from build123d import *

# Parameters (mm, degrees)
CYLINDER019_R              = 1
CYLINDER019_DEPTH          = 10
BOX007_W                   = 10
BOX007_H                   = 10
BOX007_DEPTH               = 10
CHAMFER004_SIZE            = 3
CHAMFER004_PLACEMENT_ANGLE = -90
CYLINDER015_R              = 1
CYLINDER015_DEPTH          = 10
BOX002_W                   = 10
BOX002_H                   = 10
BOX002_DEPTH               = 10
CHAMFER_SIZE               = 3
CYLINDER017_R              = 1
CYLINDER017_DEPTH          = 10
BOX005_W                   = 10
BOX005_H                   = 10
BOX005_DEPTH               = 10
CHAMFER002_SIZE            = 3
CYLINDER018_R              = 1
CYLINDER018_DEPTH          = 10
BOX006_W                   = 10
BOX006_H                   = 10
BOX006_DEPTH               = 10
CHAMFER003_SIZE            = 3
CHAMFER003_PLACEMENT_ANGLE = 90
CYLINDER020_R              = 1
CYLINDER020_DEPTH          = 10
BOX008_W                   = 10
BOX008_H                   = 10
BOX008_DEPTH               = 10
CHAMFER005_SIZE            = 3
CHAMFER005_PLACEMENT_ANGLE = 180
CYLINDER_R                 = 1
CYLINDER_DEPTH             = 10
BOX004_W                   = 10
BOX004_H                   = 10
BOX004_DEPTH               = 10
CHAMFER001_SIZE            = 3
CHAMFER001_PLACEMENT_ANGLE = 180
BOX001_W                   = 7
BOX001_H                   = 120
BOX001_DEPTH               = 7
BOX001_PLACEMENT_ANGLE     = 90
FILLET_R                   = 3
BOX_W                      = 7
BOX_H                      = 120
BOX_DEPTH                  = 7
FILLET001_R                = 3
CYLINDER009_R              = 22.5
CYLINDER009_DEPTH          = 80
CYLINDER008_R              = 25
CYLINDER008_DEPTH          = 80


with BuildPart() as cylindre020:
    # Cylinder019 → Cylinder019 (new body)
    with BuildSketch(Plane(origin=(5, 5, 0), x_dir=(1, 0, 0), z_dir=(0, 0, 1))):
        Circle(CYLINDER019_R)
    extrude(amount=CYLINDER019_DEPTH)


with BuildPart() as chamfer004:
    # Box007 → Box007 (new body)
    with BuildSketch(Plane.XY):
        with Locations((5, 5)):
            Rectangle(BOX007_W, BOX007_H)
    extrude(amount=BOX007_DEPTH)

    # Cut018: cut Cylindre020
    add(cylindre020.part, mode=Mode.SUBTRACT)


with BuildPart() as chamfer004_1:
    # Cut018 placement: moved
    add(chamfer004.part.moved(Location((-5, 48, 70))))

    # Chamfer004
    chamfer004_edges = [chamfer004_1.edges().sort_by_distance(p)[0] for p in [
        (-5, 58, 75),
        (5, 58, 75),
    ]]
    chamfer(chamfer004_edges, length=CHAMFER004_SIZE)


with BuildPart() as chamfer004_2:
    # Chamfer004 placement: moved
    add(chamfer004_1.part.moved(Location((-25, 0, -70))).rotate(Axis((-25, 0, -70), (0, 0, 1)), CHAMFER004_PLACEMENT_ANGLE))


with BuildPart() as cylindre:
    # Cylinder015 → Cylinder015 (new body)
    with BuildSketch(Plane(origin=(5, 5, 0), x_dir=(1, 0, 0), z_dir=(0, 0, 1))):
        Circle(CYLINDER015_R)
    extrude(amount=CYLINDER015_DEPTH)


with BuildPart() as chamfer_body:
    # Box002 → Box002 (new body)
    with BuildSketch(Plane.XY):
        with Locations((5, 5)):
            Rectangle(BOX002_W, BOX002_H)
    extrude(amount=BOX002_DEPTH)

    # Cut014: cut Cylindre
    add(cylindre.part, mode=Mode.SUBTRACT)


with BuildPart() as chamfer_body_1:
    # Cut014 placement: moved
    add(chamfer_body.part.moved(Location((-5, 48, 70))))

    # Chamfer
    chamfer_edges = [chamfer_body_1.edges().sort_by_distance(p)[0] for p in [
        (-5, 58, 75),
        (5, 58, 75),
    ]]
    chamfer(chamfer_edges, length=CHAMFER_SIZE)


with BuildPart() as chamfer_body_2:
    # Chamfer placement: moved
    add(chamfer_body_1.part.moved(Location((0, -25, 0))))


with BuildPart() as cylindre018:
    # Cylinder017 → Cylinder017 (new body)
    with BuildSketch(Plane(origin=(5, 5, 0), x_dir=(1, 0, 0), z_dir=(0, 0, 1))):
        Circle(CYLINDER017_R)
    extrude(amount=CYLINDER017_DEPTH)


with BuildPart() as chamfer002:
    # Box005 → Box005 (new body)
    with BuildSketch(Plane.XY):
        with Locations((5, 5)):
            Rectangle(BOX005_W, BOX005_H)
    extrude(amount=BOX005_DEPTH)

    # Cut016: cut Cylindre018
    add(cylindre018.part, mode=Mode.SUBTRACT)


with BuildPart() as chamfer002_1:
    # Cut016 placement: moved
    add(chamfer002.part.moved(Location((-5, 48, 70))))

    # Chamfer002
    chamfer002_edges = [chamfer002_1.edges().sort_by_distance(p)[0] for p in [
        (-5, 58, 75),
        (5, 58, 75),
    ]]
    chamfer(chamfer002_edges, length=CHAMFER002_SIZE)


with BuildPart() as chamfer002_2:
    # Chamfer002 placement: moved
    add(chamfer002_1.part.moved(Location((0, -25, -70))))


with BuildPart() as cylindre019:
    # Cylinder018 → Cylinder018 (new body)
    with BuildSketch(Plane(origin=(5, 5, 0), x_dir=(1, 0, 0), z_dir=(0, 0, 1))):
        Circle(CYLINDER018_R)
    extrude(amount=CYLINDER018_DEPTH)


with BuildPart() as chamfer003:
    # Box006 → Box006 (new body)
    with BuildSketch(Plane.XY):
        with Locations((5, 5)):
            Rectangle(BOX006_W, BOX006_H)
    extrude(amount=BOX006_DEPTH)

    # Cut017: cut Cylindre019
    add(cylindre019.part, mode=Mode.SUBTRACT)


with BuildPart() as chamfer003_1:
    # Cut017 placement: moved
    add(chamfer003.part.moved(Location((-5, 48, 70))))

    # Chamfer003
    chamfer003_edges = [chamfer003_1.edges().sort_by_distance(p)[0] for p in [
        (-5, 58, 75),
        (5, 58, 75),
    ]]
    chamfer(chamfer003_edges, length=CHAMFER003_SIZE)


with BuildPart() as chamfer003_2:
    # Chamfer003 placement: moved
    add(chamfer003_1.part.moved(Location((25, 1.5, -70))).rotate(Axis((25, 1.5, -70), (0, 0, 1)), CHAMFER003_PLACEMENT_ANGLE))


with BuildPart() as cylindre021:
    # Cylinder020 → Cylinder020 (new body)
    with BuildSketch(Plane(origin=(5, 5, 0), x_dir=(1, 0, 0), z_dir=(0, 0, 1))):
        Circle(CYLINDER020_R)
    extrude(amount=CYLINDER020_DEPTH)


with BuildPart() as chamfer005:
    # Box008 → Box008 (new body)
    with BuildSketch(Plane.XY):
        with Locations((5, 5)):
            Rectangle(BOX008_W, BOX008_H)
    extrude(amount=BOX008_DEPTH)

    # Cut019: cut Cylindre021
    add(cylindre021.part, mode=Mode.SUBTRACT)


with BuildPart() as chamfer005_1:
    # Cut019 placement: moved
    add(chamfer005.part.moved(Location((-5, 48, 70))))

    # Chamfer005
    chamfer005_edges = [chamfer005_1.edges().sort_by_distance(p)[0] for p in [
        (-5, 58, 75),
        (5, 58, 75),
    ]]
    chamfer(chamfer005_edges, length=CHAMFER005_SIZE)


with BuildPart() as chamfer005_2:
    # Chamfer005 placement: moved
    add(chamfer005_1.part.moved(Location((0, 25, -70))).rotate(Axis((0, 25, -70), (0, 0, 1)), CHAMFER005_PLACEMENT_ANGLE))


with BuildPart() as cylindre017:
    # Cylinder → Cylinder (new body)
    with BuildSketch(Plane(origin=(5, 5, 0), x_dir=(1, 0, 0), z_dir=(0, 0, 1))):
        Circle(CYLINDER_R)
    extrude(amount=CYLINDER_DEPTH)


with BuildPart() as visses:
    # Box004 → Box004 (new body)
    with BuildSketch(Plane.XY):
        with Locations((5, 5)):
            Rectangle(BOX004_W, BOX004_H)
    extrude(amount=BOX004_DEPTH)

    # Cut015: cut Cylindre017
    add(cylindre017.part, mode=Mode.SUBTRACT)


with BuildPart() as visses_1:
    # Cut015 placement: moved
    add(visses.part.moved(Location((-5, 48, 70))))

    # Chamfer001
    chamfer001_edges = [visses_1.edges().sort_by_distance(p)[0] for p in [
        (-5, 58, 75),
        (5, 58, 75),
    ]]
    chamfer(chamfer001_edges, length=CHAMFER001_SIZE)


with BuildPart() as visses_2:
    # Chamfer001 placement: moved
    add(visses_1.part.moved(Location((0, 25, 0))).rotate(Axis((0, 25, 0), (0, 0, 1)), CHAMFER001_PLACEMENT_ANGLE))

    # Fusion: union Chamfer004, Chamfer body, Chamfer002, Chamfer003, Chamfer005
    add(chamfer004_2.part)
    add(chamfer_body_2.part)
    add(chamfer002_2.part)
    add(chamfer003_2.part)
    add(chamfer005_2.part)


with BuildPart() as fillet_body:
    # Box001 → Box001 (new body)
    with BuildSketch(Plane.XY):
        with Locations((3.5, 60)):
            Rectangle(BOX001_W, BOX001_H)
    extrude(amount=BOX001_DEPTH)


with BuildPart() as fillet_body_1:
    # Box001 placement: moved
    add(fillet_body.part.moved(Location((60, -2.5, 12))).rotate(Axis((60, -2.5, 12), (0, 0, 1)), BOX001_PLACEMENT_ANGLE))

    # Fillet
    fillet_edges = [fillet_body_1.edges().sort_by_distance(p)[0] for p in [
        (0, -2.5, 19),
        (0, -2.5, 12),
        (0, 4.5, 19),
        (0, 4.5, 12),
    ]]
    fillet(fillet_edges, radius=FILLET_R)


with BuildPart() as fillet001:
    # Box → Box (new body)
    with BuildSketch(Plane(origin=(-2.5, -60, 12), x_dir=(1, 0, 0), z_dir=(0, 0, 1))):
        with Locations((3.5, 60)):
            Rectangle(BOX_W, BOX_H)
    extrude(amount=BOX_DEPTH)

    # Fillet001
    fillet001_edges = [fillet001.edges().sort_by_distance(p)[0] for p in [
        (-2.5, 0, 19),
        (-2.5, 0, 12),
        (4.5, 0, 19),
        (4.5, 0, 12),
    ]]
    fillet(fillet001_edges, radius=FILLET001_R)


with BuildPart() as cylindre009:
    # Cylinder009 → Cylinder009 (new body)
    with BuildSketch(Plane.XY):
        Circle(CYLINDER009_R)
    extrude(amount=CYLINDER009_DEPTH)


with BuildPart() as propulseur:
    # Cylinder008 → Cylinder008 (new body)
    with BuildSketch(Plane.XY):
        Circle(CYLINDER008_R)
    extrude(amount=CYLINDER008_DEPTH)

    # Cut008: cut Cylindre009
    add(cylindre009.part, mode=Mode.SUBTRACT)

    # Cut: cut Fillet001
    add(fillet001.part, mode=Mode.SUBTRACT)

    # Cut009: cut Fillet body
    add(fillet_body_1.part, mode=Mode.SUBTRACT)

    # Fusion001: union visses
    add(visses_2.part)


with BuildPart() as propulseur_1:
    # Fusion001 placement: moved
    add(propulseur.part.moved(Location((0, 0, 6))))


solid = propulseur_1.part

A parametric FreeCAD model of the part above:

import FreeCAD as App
import Part
import Sketcher
from FreeCAD import Vector
Q = App.Units.Quantity


def edges_at(feature, points):
    """Names of the edges that pass closest to the given points."""
    edges = feature.Shape.Edges
    near = lambda p: min(range(len(edges)), key=lambda i: edges[i].distToShape(Part.Vertex(*p))[0])
    return sorted({f"Edge{near(p) + 1}" for p in points})

doc = App.newDocument("Part")
body = doc.addObject("PartDesign::Body", "Body")

# Sketch on XY plane
sketch1 = doc.addObject("Sketcher::SketchObject", "Sketch")
body.addObject(sketch1)
sketch1.AttachmentSupport = (doc.XY_Plane, [""])
sketch1.MapMode = "FlatFace"
sketch1.addGeometry(Part.Circle(Vector(5, 5, 0), Vector(0, 0, 1), 1), False)
sketch1.addConstraint([
    Sketcher.Constraint("Diameter", 0, Q("2 mm")),
    Sketcher.Constraint("DistanceX", -1, 1, 0, 3, Q("5 mm")),
    Sketcher.Constraint("DistanceY", -1, 1, 0, 3, Q("5 mm")),
])
pad1 = doc.addObject("PartDesign::Pad", "Pad")
body.addObject(pad1)
pad1.Profile = sketch1
pad1.Length = 10
body2 = doc.addObject("PartDesign::Body", "Body001")

# Sketch on XY plane
sketch2 = doc.addObject("Sketcher::SketchObject", "Sketch001")
body2.addObject(sketch2)
sketch2.AttachmentSupport = (doc.getObject("XY_Plane001"), [""])
sketch2.MapMode = "FlatFace"
sketch2.addGeometry([
    Part.LineSegment(Vector(0, 10, 0), Vector(0, 0, 0)),
    Part.LineSegment(Vector(0, 0, 0), Vector(10, 0, 0)),
    Part.LineSegment(Vector(10, 0, 0), Vector(10, 10, 0)),
    Part.LineSegment(Vector(10, 10, 0), Vector(0, 10, 0)),
], False)
sketch2.addConstraint([
    Sketcher.Constraint("Coincident", 0, 2, 1, 1),
    Sketcher.Constraint("Coincident", 1, 2, 2, 1),
    Sketcher.Constraint("Coincident", 2, 2, 3, 1),
    Sketcher.Constraint("Coincident", 3, 2, 0, 1),
    Sketcher.Constraint("Vertical", 0),
    Sketcher.Constraint("Horizontal", 1),
    Sketcher.Constraint("Vertical", 2),
    Sketcher.Constraint("Horizontal", 3),
    Sketcher.Constraint("Coincident", 0, 2, -1, 1),
    Sketcher.Constraint("Equal", 3, 0),
    Sketcher.Constraint("DistanceX", 1, 1, 1, 2, Q("10 mm")),
])
pad2 = doc.addObject("PartDesign::Pad", "Pad001")
body2.addObject(pad2)
pad2.Profile = sketch2
pad2.Length = 10
doc.recompute()

boolean = doc.addObject("PartDesign::Boolean", "Boolean")
body2.addObject(boolean)
boolean.Type = "Cut"
boolean.addObjects([body])
body3 = doc.addObject("PartDesign::Body", "Body002")
doc.recompute()

body2.Placement = App.Placement(Vector(-5, 48, 70), App.Rotation(Vector(0, 0, 1), 0))
boolean2 = doc.addObject("PartDesign::Boolean", "Boolean001")
body3.addObject(boolean2)
boolean2.Type = "Fuse"
boolean2.addObjects([body2])
doc.recompute()

chamfer = doc.addObject("PartDesign::Chamfer", "Chamfer")
body3.addObject(chamfer)
chamfer.Base = (boolean2, edges_at(boolean2, [(-5, 58, 75), (5, 58, 75)]))
chamfer.Size = 3
body4 = doc.addObject("PartDesign::Body", "Body003")
doc.recompute()

body3.Placement = App.Placement(Vector(-25, 0, -70), App.Rotation(Vector(0, 0, 1), 270))
boolean3 = doc.addObject("PartDesign::Boolean", "Boolean002")
body4.addObject(boolean3)
boolean3.Type = "Fuse"
boolean3.addObjects([body3])
body5 = doc.addObject("PartDesign::Body", "Body004")

# Sketch on XY plane
sketch3 = doc.addObject("Sketcher::SketchObject", "Sketch002")
body5.addObject(sketch3)
sketch3.AttachmentSupport = (doc.getObject("XY_Plane004"), [""])
sketch3.MapMode = "FlatFace"
sketch3.addGeometry(Part.Circle(Vector(5, 5, 0), Vector(0, 0, 1), 1), False)
sketch3.addConstraint([
    Sketcher.Constraint("Diameter", 0, Q("2 mm")),
    Sketcher.Constraint("DistanceX", -1, 1, 0, 3, Q("5 mm")),
    Sketcher.Constraint("DistanceY", -1, 1, 0, 3, Q("5 mm")),
])
pad3 = doc.addObject("PartDesign::Pad", "Pad002")
body5.addObject(pad3)
pad3.Profile = sketch3
pad3.Length = 10
body6 = doc.addObject("PartDesign::Body", "Body005")

# Sketch on XY plane
sketch4 = doc.addObject("Sketcher::SketchObject", "Sketch003")
body6.addObject(sketch4)
sketch4.AttachmentSupport = (doc.getObject("XY_Plane005"), [""])
sketch4.MapMode = "FlatFace"
sketch4.addGeometry([
    Part.LineSegment(Vector(0, 10, 0), Vector(0, 0, 0)),
    Part.LineSegment(Vector(0, 0, 0), Vector(10, 0, 0)),
    Part.LineSegment(Vector(10, 0, 0), Vector(10, 10, 0)),
    Part.LineSegment(Vector(10, 10, 0), Vector(0, 10, 0)),
], False)
sketch4.addConstraint([
    Sketcher.Constraint("Coincident", 0, 2, 1, 1),
    Sketcher.Constraint("Coincident", 1, 2, 2, 1),
    Sketcher.Constraint("Coincident", 2, 2, 3, 1),
    Sketcher.Constraint("Coincident", 3, 2, 0, 1),
    Sketcher.Constraint("Vertical", 0),
    Sketcher.Constraint("Horizontal", 1),
    Sketcher.Constraint("Vertical", 2),
    Sketcher.Constraint("Horizontal", 3),
    Sketcher.Constraint("Coincident", 0, 2, -1, 1),
    Sketcher.Constraint("Equal", 3, 0),
    Sketcher.Constraint("DistanceX", 1, 1, 1, 2, Q("10 mm")),
])
pad4 = doc.addObject("PartDesign::Pad", "Pad003")
body6.addObject(pad4)
pad4.Profile = sketch4
pad4.Length = 10
doc.recompute()

boolean4 = doc.addObject("PartDesign::Boolean", "Boolean003")
body6.addObject(boolean4)
boolean4.Type = "Cut"
boolean4.addObjects([body5])
body7 = doc.addObject("PartDesign::Body", "Body006")
doc.recompute()

body6.Placement = App.Placement(Vector(-5, 48, 70), App.Rotation(Vector(0, 0, 1), 0))
boolean5 = doc.addObject("PartDesign::Boolean", "Boolean004")
body7.addObject(boolean5)
boolean5.Type = "Fuse"
boolean5.addObjects([body6])
doc.recompute()

chamfer2 = doc.addObject("PartDesign::Chamfer", "Chamfer001")
body7.addObject(chamfer2)
chamfer2.Base = (boolean5, edges_at(boolean5, [(-5, 58, 75), (5, 58, 75)]))
chamfer2.Size = 3
body8 = doc.addObject("PartDesign::Body", "Body007")
doc.recompute()

body7.Placement = App.Placement(Vector(0, -25, 0), App.Rotation(Vector(0, 0, 1), 0))
boolean6 = doc.addObject("PartDesign::Boolean", "Boolean005")
body8.addObject(boolean6)
boolean6.Type = "Fuse"
boolean6.addObjects([body7])
body9 = doc.addObject("PartDesign::Body", "Body008")

# Sketch on XY plane
sketch5 = doc.addObject("Sketcher::SketchObject", "Sketch004")
body9.addObject(sketch5)
sketch5.AttachmentSupport = (doc.getObject("XY_Plane008"), [""])
sketch5.MapMode = "FlatFace"
sketch5.addGeometry(Part.Circle(Vector(5, 5, 0), Vector(0, 0, 1), 1), False)
sketch5.addConstraint([
    Sketcher.Constraint("Diameter", 0, Q("2 mm")),
    Sketcher.Constraint("DistanceX", -1, 1, 0, 3, Q("5 mm")),
    Sketcher.Constraint("DistanceY", -1, 1, 0, 3, Q("5 mm")),
])
pad5 = doc.addObject("PartDesign::Pad", "Pad004")
body9.addObject(pad5)
pad5.Profile = sketch5
pad5.Length = 10
body10 = doc.addObject("PartDesign::Body", "Body009")

# Sketch on XY plane
sketch6 = doc.addObject("Sketcher::SketchObject", "Sketch005")
body10.addObject(sketch6)
sketch6.AttachmentSupport = (doc.getObject("XY_Plane009"), [""])
sketch6.MapMode = "FlatFace"
sketch6.addGeometry([
    Part.LineSegment(Vector(0, 10, 0), Vector(0, 0, 0)),
    Part.LineSegment(Vector(0, 0, 0), Vector(10, 0, 0)),
    Part.LineSegment(Vector(10, 0, 0), Vector(10, 10, 0)),
    Part.LineSegment(Vector(10, 10, 0), Vector(0, 10, 0)),
], False)
sketch6.addConstraint([
    Sketcher.Constraint("Coincident", 0, 2, 1, 1),
    Sketcher.Constraint("Coincident", 1, 2, 2, 1),
    Sketcher.Constraint("Coincident", 2, 2, 3, 1),
    Sketcher.Constraint("Coincident", 3, 2, 0, 1),
    Sketcher.Constraint("Vertical", 0),
    Sketcher.Constraint("Horizontal", 1),
    Sketcher.Constraint("Vertical", 2),
    Sketcher.Constraint("Horizontal", 3),
    Sketcher.Constraint("Coincident", 0, 2, -1, 1),
    Sketcher.Constraint("Equal", 3, 0),
    Sketcher.Constraint("DistanceX", 1, 1, 1, 2, Q("10 mm")),
])
pad6 = doc.addObject("PartDesign::Pad", "Pad005")
body10.addObject(pad6)
pad6.Profile = sketch6
pad6.Length = 10
doc.recompute()

boolean7 = doc.addObject("PartDesign::Boolean", "Boolean006")
body10.addObject(boolean7)
boolean7.Type = "Cut"
boolean7.addObjects([body9])
body11 = doc.addObject("PartDesign::Body", "Body010")
doc.recompute()

body10.Placement = App.Placement(Vector(-5, 48, 70), App.Rotation(Vector(0, 0, 1), 0))
boolean8 = doc.addObject("PartDesign::Boolean", "Boolean007")
body11.addObject(boolean8)
boolean8.Type = "Fuse"
boolean8.addObjects([body10])
doc.recompute()

chamfer3 = doc.addObject("PartDesign::Chamfer", "Chamfer002")
body11.addObject(chamfer3)
chamfer3.Base = (boolean8, edges_at(boolean8, [(-5, 58, 75), (5, 58, 75)]))
chamfer3.Size = 3
body12 = doc.addObject("PartDesign::Body", "Body011")
doc.recompute()

body11.Placement = App.Placement(Vector(0, -25, -70), App.Rotation(Vector(0, 0, 1), 0))
boolean9 = doc.addObject("PartDesign::Boolean", "Boolean008")
body12.addObject(boolean9)
boolean9.Type = "Fuse"
boolean9.addObjects([body11])
body13 = doc.addObject("PartDesign::Body", "Body012")

# Sketch on XY plane
sketch7 = doc.addObject("Sketcher::SketchObject", "Sketch006")
body13.addObject(sketch7)
sketch7.AttachmentSupport = (doc.getObject("XY_Plane012"), [""])
sketch7.MapMode = "FlatFace"
sketch7.addGeometry(Part.Circle(Vector(5, 5, 0), Vector(0, 0, 1), 1), False)
sketch7.addConstraint([
    Sketcher.Constraint("Diameter", 0, Q("2 mm")),
    Sketcher.Constraint("DistanceX", -1, 1, 0, 3, Q("5 mm")),
    Sketcher.Constraint("DistanceY", -1, 1, 0, 3, Q("5 mm")),
])
pad7 = doc.addObject("PartDesign::Pad", "Pad006")
body13.addObject(pad7)
pad7.Profile = sketch7
pad7.Length = 10
body14 = doc.addObject("PartDesign::Body", "Body013")

# Sketch on XY plane
sketch8 = doc.addObject("Sketcher::SketchObject", "Sketch007")
body14.addObject(sketch8)
sketch8.AttachmentSupport = (doc.getObject("XY_Plane013"), [""])
sketch8.MapMode = "FlatFace"
sketch8.addGeometry([
    Part.LineSegment(Vector(0, 10, 0), Vector(0, 0, 0)),
    Part.LineSegment(Vector(0, 0, 0), Vector(10, 0, 0)),
    Part.LineSegment(Vector(10, 0, 0), Vector(10, 10, 0)),
    Part.LineSegment(Vector(10, 10, 0), Vector(0, 10, 0)),
], False)
sketch8.addConstraint([
    Sketcher.Constraint("Coincident", 0, 2, 1, 1),
    Sketcher.Constraint("Coincident", 1, 2, 2, 1),
    Sketcher.Constraint("Coincident", 2, 2, 3, 1),
    Sketcher.Constraint("Coincident", 3, 2, 0, 1),
    Sketcher.Constraint("Vertical", 0),
    Sketcher.Constraint("Horizontal", 1),
    Sketcher.Constraint("Vertical", 2),
    Sketcher.Constraint("Horizontal", 3),
    Sketcher.Constraint("Coincident", 0, 2, -1, 1),
    Sketcher.Constraint("Equal", 3, 0),
    Sketcher.Constraint("DistanceX", 1, 1, 1, 2, Q("10 mm")),
])
pad8 = doc.addObject("PartDesign::Pad", "Pad007")
body14.addObject(pad8)
pad8.Profile = sketch8
pad8.Length = 10
doc.recompute()

boolean10 = doc.addObject("PartDesign::Boolean", "Boolean009")
body14.addObject(boolean10)
boolean10.Type = "Cut"
boolean10.addObjects([body13])
body15 = doc.addObject("PartDesign::Body", "Body014")
doc.recompute()

body14.Placement = App.Placement(Vector(-5, 48, 70), App.Rotation(Vector(0, 0, 1), 0))
boolean11 = doc.addObject("PartDesign::Boolean", "Boolean010")
body15.addObject(boolean11)
boolean11.Type = "Fuse"
boolean11.addObjects([body14])
doc.recompute()

chamfer4 = doc.addObject("PartDesign::Chamfer", "Chamfer003")
body15.addObject(chamfer4)
chamfer4.Base = (boolean11, edges_at(boolean11, [(-5, 58, 75), (5, 58, 75)]))
chamfer4.Size = 3
body16 = doc.addObject("PartDesign::Body", "Body015")
doc.recompute()

body15.Placement = App.Placement(Vector(25, 1.5, -70), App.Rotation(Vector(0, 0, 1), 90))
boolean12 = doc.addObject("PartDesign::Boolean", "Boolean011")
body16.addObject(boolean12)
boolean12.Type = "Fuse"
boolean12.addObjects([body15])
body17 = doc.addObject("PartDesign::Body", "Body016")

# Sketch on XY plane
sketch9 = doc.addObject("Sketcher::SketchObject", "Sketch008")
body17.addObject(sketch9)
sketch9.AttachmentSupport = (doc.getObject("XY_Plane016"), [""])
sketch9.MapMode = "FlatFace"
sketch9.addGeometry(Part.Circle(Vector(5, 5, 0), Vector(0, 0, 1), 1), False)
sketch9.addConstraint([
    Sketcher.Constraint("Diameter", 0, Q("2 mm")),
    Sketcher.Constraint("DistanceX", -1, 1, 0, 3, Q("5 mm")),
    Sketcher.Constraint("DistanceY", -1, 1, 0, 3, Q("5 mm")),
])
pad9 = doc.addObject("PartDesign::Pad", "Pad008")
body17.addObject(pad9)
pad9.Profile = sketch9
pad9.Length = 10
body18 = doc.addObject("PartDesign::Body", "Body017")

# Sketch on XY plane
sketch10 = doc.addObject("Sketcher::SketchObject", "Sketch009")
body18.addObject(sketch10)
sketch10.AttachmentSupport = (doc.getObject("XY_Plane017"), [""])
sketch10.MapMode = "FlatFace"
sketch10.addGeometry([
    Part.LineSegment(Vector(0, 10, 0), Vector(0, 0, 0)),
    Part.LineSegment(Vector(0, 0, 0), Vector(10, 0, 0)),
    Part.LineSegment(Vector(10, 0, 0), Vector(10, 10, 0)),
    Part.LineSegment(Vector(10, 10, 0), Vector(0, 10, 0)),
], False)
sketch10.addConstraint([
    Sketcher.Constraint("Coincident", 0, 2, 1, 1),
    Sketcher.Constraint("Coincident", 1, 2, 2, 1),
    Sketcher.Constraint("Coincident", 2, 2, 3, 1),
    Sketcher.Constraint("Coincident", 3, 2, 0, 1),
    Sketcher.Constraint("Vertical", 0),
    Sketcher.Constraint("Horizontal", 1),
    Sketcher.Constraint("Vertical", 2),
    Sketcher.Constraint("Horizontal", 3),
    Sketcher.Constraint("Coincident", 0, 2, -1, 1),
    Sketcher.Constraint("Equal", 3, 0),
    Sketcher.Constraint("DistanceX", 1, 1, 1, 2, Q("10 mm")),
])
pad10 = doc.addObject("PartDesign::Pad", "Pad009")
body18.addObject(pad10)
pad10.Profile = sketch10
pad10.Length = 10
doc.recompute()

boolean13 = doc.addObject("PartDesign::Boolean", "Boolean012")
body18.addObject(boolean13)
boolean13.Type = "Cut"
boolean13.addObjects([body17])
body19 = doc.addObject("PartDesign::Body", "Body018")
doc.recompute()

body18.Placement = App.Placement(Vector(-5, 48, 70), App.Rotation(Vector(0, 0, 1), 0))
boolean14 = doc.addObject("PartDesign::Boolean", "Boolean013")
body19.addObject(boolean14)
boolean14.Type = "Fuse"
boolean14.addObjects([body18])
doc.recompute()

chamfer5 = doc.addObject("PartDesign::Chamfer", "Chamfer004")
body19.addObject(chamfer5)
chamfer5.Base = (boolean14, edges_at(boolean14, [(-5, 58, 75), (5, 58, 75)]))
chamfer5.Size = 3
body20 = doc.addObject("PartDesign::Body", "Body019")
doc.recompute()

body19.Placement = App.Placement(Vector(0, 25, -70), App.Rotation(Vector(0, 0, 1), 180))
boolean15 = doc.addObject("PartDesign::Boolean", "Boolean014")
body20.addObject(boolean15)
boolean15.Type = "Fuse"
boolean15.addObjects([body19])
body21 = doc.addObject("PartDesign::Body", "Body020")

# Sketch on XY plane
sketch11 = doc.addObject("Sketcher::SketchObject", "Sketch010")
body21.addObject(sketch11)
sketch11.AttachmentSupport = (doc.getObject("XY_Plane020"), [""])
sketch11.MapMode = "FlatFace"
sketch11.addGeometry(Part.Circle(Vector(5, 5, 0), Vector(0, 0, 1), 1), False)
sketch11.addConstraint([
    Sketcher.Constraint("Diameter", 0, Q("2 mm")),
    Sketcher.Constraint("DistanceX", -1, 1, 0, 3, Q("5 mm")),
    Sketcher.Constraint("DistanceY", -1, 1, 0, 3, Q("5 mm")),
])
pad11 = doc.addObject("PartDesign::Pad", "Pad010")
body21.addObject(pad11)
pad11.Profile = sketch11
pad11.Length = 10
body22 = doc.addObject("PartDesign::Body", "Body021")

# Sketch on XY plane
sketch12 = doc.addObject("Sketcher::SketchObject", "Sketch011")
body22.addObject(sketch12)
sketch12.AttachmentSupport = (doc.getObject("XY_Plane021"), [""])
sketch12.MapMode = "FlatFace"
sketch12.addGeometry([
    Part.LineSegment(Vector(0, 10, 0), Vector(0, 0, 0)),
    Part.LineSegment(Vector(0, 0, 0), Vector(10, 0, 0)),
    Part.LineSegment(Vector(10, 0, 0), Vector(10, 10, 0)),
    Part.LineSegment(Vector(10, 10, 0), Vector(0, 10, 0)),
], False)
sketch12.addConstraint([
    Sketcher.Constraint("Coincident", 0, 2, 1, 1),
    Sketcher.Constraint("Coincident", 1, 2, 2, 1),
    Sketcher.Constraint("Coincident", 2, 2, 3, 1),
    Sketcher.Constraint("Coincident", 3, 2, 0, 1),
    Sketcher.Constraint("Vertical", 0),
    Sketcher.Constraint("Horizontal", 1),
    Sketcher.Constraint("Vertical", 2),
    Sketcher.Constraint("Horizontal", 3),
    Sketcher.Constraint("Coincident", 0, 2, -1, 1),
    Sketcher.Constraint("Equal", 3, 0),
    Sketcher.Constraint("DistanceX", 1, 1, 1, 2, Q("10 mm")),
])
pad12 = doc.addObject("PartDesign::Pad", "Pad011")
body22.addObject(pad12)
pad12.Profile = sketch12
pad12.Length = 10
doc.recompute()

boolean16 = doc.addObject("PartDesign::Boolean", "Boolean015")
body22.addObject(boolean16)
boolean16.Type = "Cut"
boolean16.addObjects([body21])
body23 = doc.addObject("PartDesign::Body", "Body022")
doc.recompute()

body22.Placement = App.Placement(Vector(-5, 48, 70), App.Rotation(Vector(0, 0, 1), 0))
boolean17 = doc.addObject("PartDesign::Boolean", "Boolean016")
body23.addObject(boolean17)
boolean17.Type = "Fuse"
boolean17.addObjects([body22])
doc.recompute()

chamfer6 = doc.addObject("PartDesign::Chamfer", "Chamfer005")
body23.addObject(chamfer6)
chamfer6.Base = (boolean17, edges_at(boolean17, [(-5, 58, 75), (5, 58, 75)]))
chamfer6.Size = 3
body24 = doc.addObject("PartDesign::Body", "Body023")
body24.AllowCompound = True
doc.recompute()

body23.Placement = App.Placement(Vector(0, 25, 0), App.Rotation(Vector(0, 0, 1), 180))
boolean18 = doc.addObject("PartDesign::Boolean", "Boolean017")
body24.addObject(boolean18)
boolean18.Type = "Fuse"
boolean18.addObjects([body23])
doc.recompute()

boolean19 = doc.addObject("PartDesign::Boolean", "Boolean018")
body24.addObject(boolean19)
boolean19.Type = "Fuse"
boolean19.addObjects([body4])
doc.recompute()

boolean20 = doc.addObject("PartDesign::Boolean", "Boolean019")
body24.addObject(boolean20)
boolean20.Type = "Fuse"
boolean20.addObjects([body8])
doc.recompute()

boolean21 = doc.addObject("PartDesign::Boolean", "Boolean020")
body24.addObject(boolean21)
boolean21.Type = "Fuse"
boolean21.addObjects([body12])
doc.recompute()

boolean22 = doc.addObject("PartDesign::Boolean", "Boolean021")
body24.addObject(boolean22)
boolean22.Type = "Fuse"
boolean22.addObjects([body16])
doc.recompute()

boolean23 = doc.addObject("PartDesign::Boolean", "Boolean022")
body24.addObject(boolean23)
boolean23.Type = "Fuse"
boolean23.addObjects([body20])
body25 = doc.addObject("PartDesign::Body", "Body024")

# Sketch on XY plane
sketch13 = doc.addObject("Sketcher::SketchObject", "Sketch012")
body25.addObject(sketch13)
sketch13.AttachmentSupport = (doc.getObject("XY_Plane024"), [""])
sketch13.MapMode = "FlatFace"
sketch13.addGeometry([
    Part.LineSegment(Vector(0, 120, 0), Vector(0, 0, 0)),
    Part.LineSegment(Vector(0, 0, 0), Vector(7, 0, 0)),
    Part.LineSegment(Vector(7, 0, 0), Vector(7, 120, 0)),
    Part.LineSegment(Vector(7, 120, 0), Vector(0, 120, 0)),
], False)
sketch13.addConstraint([
    Sketcher.Constraint("Coincident", 0, 2, 1, 1),
    Sketcher.Constraint("Coincident", 1, 2, 2, 1),
    Sketcher.Constraint("Coincident", 2, 2, 3, 1),
    Sketcher.Constraint("Coincident", 3, 2, 0, 1),
    Sketcher.Constraint("Vertical", 0),
    Sketcher.Constraint("Horizontal", 1),
    Sketcher.Constraint("Vertical", 2),
    Sketcher.Constraint("Horizontal", 3),
    Sketcher.Constraint("Coincident", 0, 2, -1, 1),
    Sketcher.Constraint("DistanceX", 1, 1, 1, 2, Q("7 mm")),
    Sketcher.Constraint("DistanceY", 0, 2, 0, 1, Q("120 mm")),
])
pad13 = doc.addObject("PartDesign::Pad", "Pad012")
body25.addObject(pad13)
pad13.Profile = sketch13
pad13.Length = 7
body26 = doc.addObject("PartDesign::Body", "Body025")
doc.recompute()

body25.Placement = App.Placement(Vector(60, -2.5, 12), App.Rotation(Vector(0, 0, 1), 90))
boolean24 = doc.addObject("PartDesign::Boolean", "Boolean023")
body26.addObject(boolean24)
boolean24.Type = "Fuse"
boolean24.addObjects([body25])
doc.recompute()

fillet = doc.addObject("PartDesign::Fillet", "Fillet")
body26.addObject(fillet)
fillet.Base = (boolean24, edges_at(boolean24, [
    (0, -2.5, 19),
    (0, -2.5, 12),
    (0, 4.5, 19),
    (0, 4.5, 12),
]))
fillet.Radius = 3
body27 = doc.addObject("PartDesign::Body", "Body026")

# Sketch on XY plane
sketch14 = doc.addObject("Sketcher::SketchObject", "Sketch013")
body27.addObject(sketch14)
sketch14.AttachmentSupport = (doc.getObject("XY_Plane026"), [""])
sketch14.MapMode = "FlatFace"
sketch14.AttachmentOffset = App.Placement(Vector(0, 0, 12), App.Rotation())
sketch14.addGeometry([
    Part.LineSegment(Vector(-2, 60, 0), Vector(-2, -60, 0)),
    Part.LineSegment(Vector(-2, -60, 0), Vector(4, -60, 0)),
    Part.LineSegment(Vector(4, -60, 0), Vector(4, 60, 0)),
    Part.LineSegment(Vector(4, 60, 0), Vector(-2, 60, 0)),
], False)
sketch14.addConstraint([
    Sketcher.Constraint("Coincident", 0, 2, 1, 1),
    Sketcher.Constraint("Coincident", 1, 2, 2, 1),
    Sketcher.Constraint("Coincident", 2, 2, 3, 1),
    Sketcher.Constraint("Coincident", 3, 2, 0, 1),
    Sketcher.Constraint("Vertical", 0),
    Sketcher.Constraint("Horizontal", 1),
    Sketcher.Constraint("Vertical", 2),
    Sketcher.Constraint("Horizontal", 3),
    Sketcher.Constraint("DistanceX", 1, 1, 1, 2, Q("7 mm")),
    Sketcher.Constraint("DistanceY", 0, 2, 0, 1, Q("120 mm")),
    Sketcher.Constraint("DistanceY", 0, 2, -1, 1, Q("60 mm")),
    Sketcher.Constraint("DistanceX", 0, 2, -1, 1, Q("2.5 mm")),
])
pad14 = doc.addObject("PartDesign::Pad", "Pad013")
body27.addObject(pad14)
pad14.Profile = sketch14
pad14.Length = 7
doc.recompute()

fillet2 = doc.addObject("PartDesign::Fillet", "Fillet001")
body27.addObject(fillet2)
fillet2.Base = (pad14, edges_at(pad14, [
    (-2.5, 0, 19),
    (-2.5, 0, 12),
    (4.5, 0, 19),
    (4.5, 0, 12),
]))
fillet2.Radius = 3
body28 = doc.addObject("PartDesign::Body", "Body027")

# Sketch on XY plane
sketch15 = doc.addObject("Sketcher::SketchObject", "Sketch014")
body28.addObject(sketch15)
sketch15.AttachmentSupport = (doc.getObject("XY_Plane027"), [""])
sketch15.MapMode = "FlatFace"
sketch15.addGeometry(Part.Circle(Vector(0, 0, 0), Vector(0, 0, 1), 22), False)
sketch15.addConstraint([
    Sketcher.Constraint("Coincident", 0, 3, -1, 1),
    Sketcher.Constraint("Diameter", 0, Q("45 mm")),
])
pad15 = doc.addObject("PartDesign::Pad", "Pad014")
body28.addObject(pad15)
pad15.Profile = sketch15
pad15.Length = 80
body29 = doc.addObject("PartDesign::Body", "Body028")

# Sketch on XY plane
sketch16 = doc.addObject("Sketcher::SketchObject", "Sketch015")
body29.addObject(sketch16)
sketch16.AttachmentSupport = (doc.getObject("XY_Plane028"), [""])
sketch16.MapMode = "FlatFace"
sketch16.addGeometry(Part.Circle(Vector(0, 0, 0), Vector(0, 0, 1), 25), False)
sketch16.addConstraint([
    Sketcher.Constraint("Coincident", 0, 3, -1, 1),
    Sketcher.Constraint("Diameter", 0, Q("50 mm")),
])
pad16 = doc.addObject("PartDesign::Pad", "Pad015")
body29.addObject(pad16)
pad16.Profile = sketch16
pad16.Length = 80
doc.recompute()

boolean25 = doc.addObject("PartDesign::Boolean", "Boolean024")
body29.addObject(boolean25)
boolean25.Type = "Cut"
boolean25.addObjects([body28])
doc.recompute()

boolean26 = doc.addObject("PartDesign::Boolean", "Boolean025")
body29.addObject(boolean26)
boolean26.Type = "Cut"
boolean26.addObjects([body27])
doc.recompute()

boolean27 = doc.addObject("PartDesign::Boolean", "Boolean026")
body29.addObject(boolean27)
boolean27.Type = "Cut"
boolean27.addObjects([body26])
doc.recompute()

boolean28 = doc.addObject("PartDesign::Boolean", "Boolean027")
body29.addObject(boolean28)
boolean28.Type = "Fuse"
boolean28.addObjects([body24])
body30 = doc.addObject("PartDesign::Body", "Body029")
doc.recompute()

body29.Placement = App.Placement(Vector(0, 0, 6), App.Rotation(Vector(0, 0, 1), 0))
boolean29 = doc.addObject("PartDesign::Boolean", "Boolean028")
body30.addObject(boolean29)
boolean29.Type = "Fuse"
boolean29.addObjects([body29])

doc.recompute()
